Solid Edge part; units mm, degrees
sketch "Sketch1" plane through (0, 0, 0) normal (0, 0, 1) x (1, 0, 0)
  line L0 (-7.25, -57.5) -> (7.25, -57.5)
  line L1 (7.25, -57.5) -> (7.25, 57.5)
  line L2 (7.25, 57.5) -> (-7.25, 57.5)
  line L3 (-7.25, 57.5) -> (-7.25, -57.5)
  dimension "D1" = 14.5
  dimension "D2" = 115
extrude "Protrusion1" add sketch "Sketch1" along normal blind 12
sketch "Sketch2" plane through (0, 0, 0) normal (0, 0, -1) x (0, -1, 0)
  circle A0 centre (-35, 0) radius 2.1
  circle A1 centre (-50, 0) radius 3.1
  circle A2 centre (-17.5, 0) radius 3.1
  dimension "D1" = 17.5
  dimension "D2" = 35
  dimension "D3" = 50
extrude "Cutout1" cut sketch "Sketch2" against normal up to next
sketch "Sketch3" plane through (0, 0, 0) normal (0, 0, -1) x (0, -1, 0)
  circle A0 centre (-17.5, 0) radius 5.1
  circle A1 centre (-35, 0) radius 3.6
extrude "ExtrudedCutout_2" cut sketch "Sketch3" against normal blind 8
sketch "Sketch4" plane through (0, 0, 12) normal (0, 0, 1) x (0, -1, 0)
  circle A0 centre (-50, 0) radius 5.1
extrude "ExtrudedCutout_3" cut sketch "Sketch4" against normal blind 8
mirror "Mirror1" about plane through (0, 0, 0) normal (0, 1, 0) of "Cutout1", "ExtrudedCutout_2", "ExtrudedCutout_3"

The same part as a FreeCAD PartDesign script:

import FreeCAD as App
import Part
import Sketcher

V = App.Vector
Q = App.Units.Quantity


def add_polygon(sketch, points):
    """Adds a closed chain of lines whose ends are joined by coincident constraints."""
    first, n = sketch.GeometryCount, len(points)
    for a, b in zip(points, points[1:] + points[:1]):
        sketch.addGeometry(Part.LineSegment(App.Vector(*a, 0), App.Vector(*b, 0)), False)
    for i in range(n):
        sketch.addConstraint(Sketcher.Constraint("Coincident", first + i, 2, first + (i + 1) % n, 1))

doc = App.newDocument("Part")
params = doc.addObject("Spreadsheet::Sheet", "Params")
for row, (alias, value) in enumerate([
    ("sketch1_height", "115 mm"),
    ("pad1_length", "12 mm"),
    ("sketch2_diameter", "4.2 mm"),
    ("sketch2_diameter2", "6.2 mm"),
    ("sketch3_diameter", "10.2 mm"),
    ("sketch3_diameter2", "7.2 mm"),
    ("pocket2_length", "8 mm"),
    ("sketch4_diameter", "10.2 mm"),
    ("pocket3_length", "8 mm"),
], start=1):
    params.set(f"A{row}", alias)
    params.set(f"B{row}", "=" + value)
    params.setAlias(f"B{row}", alias)

body = doc.addObject("PartDesign::Body", "Body")

sketch1 = doc.addObject("Sketcher::SketchObject", "Sketch")
body.addObject(sketch1)
sketch1.AttachmentSupport = (doc.XY_Plane, [""])
sketch1.MapMode = "FlatFace"
add_polygon(sketch1, [(-7.25, 57.5), (-7.25, -57.5), (7.25, -57.5), (7.25, 57.5)])
sketch1.addConstraint([
    Sketcher.Constraint("Vertical", 0),
    Sketcher.Constraint("Horizontal", 1),
    Sketcher.Constraint("Vertical", 2),
    Sketcher.Constraint("Horizontal", 3),
    Sketcher.Constraint("Symmetric", 0, 2, 2, 2, -1, 1),
    Sketcher.Constraint("DistanceY", 0, 2, 0, 1, Q("115 mm")),
    Sketcher.Constraint("DistanceX", 0, 2, -1, 1, Q("7.25 mm")),
])
sketch1.setExpression("Constraints[9]", "Params.sketch1_height")
pad1 = doc.addObject("PartDesign::Pad", "Pad")
body.addObject(pad1)
pad1.Profile = sketch1
pad1.setExpression("Length", "Params.pad1_length")

sketch2 = doc.addObject("Sketcher::SketchObject", "Sketch001")
body.addObject(sketch2)
sketch2.AttachmentSupport = (doc.XY_Plane, [""])
sketch2.MapMode = "FlatFace"
sketch2.addGeometry([
    Part.Circle(V(0, 35, 0), V(0, 0, 1), 2.1),
    Part.Circle(V(0, 50, 0), V(0, 0, 1), 3.1),
    Part.Circle(V(0, 17.5, 0), V(0, 0, 1), 3.1),
], False)
sketch2.addConstraint([
    Sketcher.Constraint("Equal", 1, 2),
    Sketcher.Constraint("PointOnObject", 0, 3, -2),
    Sketcher.Constraint("PointOnObject", 1, 3, -2),
    Sketcher.Constraint("PointOnObject", 2, 3, -2),
    Sketcher.Constraint("Diameter", 0, Q("4.2 mm")),
    Sketcher.Constraint("Diameter", 1, Q("6.2 mm")),
    Sketcher.Constraint("DistanceY", -1, 1, 0, 3, Q("35 mm")),
    Sketcher.Constraint("DistanceY", -1, 1, 1, 3, Q("50 mm")),
    Sketcher.Constraint("DistanceY", -1, 1, 2, 3, Q("17.5 mm")),
])
sketch2.setExpression("Constraints[4]", "Params.sketch2_diameter")
sketch2.setExpression("Constraints[5]", "Params.sketch2_diameter2")
pocket1 = doc.addObject("PartDesign::Pocket", "Pocket")
body.addObject(pocket1)
pocket1.Profile = sketch2
pocket1.Type = "UpToFirst"
pocket1.Reversed = True

sketch3 = doc.addObject("Sketcher::SketchObject", "Sketch002")
body.addObject(sketch3)
sketch3.AttachmentSupport = (doc.XY_Plane, [""])
sketch3.MapMode = "FlatFace"
sketch3.addGeometry([
    Part.Circle(V(0, 17.5, 0), V(0, 0, 1), 5.1),
    Part.Circle(V(0, 35, 0), V(0, 0, 1), 3.6),
], False)
sketch3.addConstraint([
    Sketcher.Constraint("PointOnObject", 0, 3, -2),
    Sketcher.Constraint("PointOnObject", 1, 3, -2),
    Sketcher.Constraint("Diameter", 0, Q("10.2 mm")),
    Sketcher.Constraint("Diameter", 1, Q("7.2 mm")),
    Sketcher.Constraint("DistanceY", -1, 1, 1, 3, Q("35 mm")),
    Sketcher.Constraint("DistanceY", -1, 1, 0, 3, Q("17.5 mm")),
])
sketch3.setExpression("Constraints[2]", "Params.sketch3_diameter")
sketch3.setExpression("Constraints[3]", "Params.sketch3_diameter2")
pocket2 = doc.addObject("PartDesign::Pocket", "Pocket001")
body.addObject(pocket2)
pocket2.Profile = sketch3
pocket2.setExpression("Length", "Params.pocket2_length")
pocket2.Reversed = True

sketch4 = doc.addObject("Sketcher::SketchObject", "Sketch003")
body.addObject(sketch4)
sketch4.AttachmentSupport = (doc.XY_Plane, [""])
sketch4.MapMode = "FlatFace"
sketch4.AttachmentOffset = App.Placement(V(0, 0, 12), App.Rotation())
sketch4.addGeometry(Part.Circle(V(0, 50, 0), V(0, 0, 1), 5.1), False)
sketch4.addConstraint([
    Sketcher.Constraint("PointOnObject", 0, 3, -2),
    Sketcher.Constraint("Diameter", 0, Q("10.2 mm")),
    Sketcher.Constraint("DistanceY", -1, 1, 0, 3, Q("50 mm")),
])
sketch4.setExpression("Constraints[1]", "Params.sketch4_diameter")
pocket3 = doc.addObject("PartDesign::Pocket", "Pocket002")
body.addObject(pocket3)
pocket3.Profile = sketch4
pocket3.setExpression("Length", "Params.pocket3_length")
doc.recompute()

mirrored = doc.addObject("PartDesign::Mirrored", "Mirrored")
body.addObject(mirrored)
mirrored.Originals = [pocket1, pocket2, pocket3]
mirrored.MirrorPlane = (doc.XZ_Plane, [""])
body.Tip = mirrored

doc.recompute()
